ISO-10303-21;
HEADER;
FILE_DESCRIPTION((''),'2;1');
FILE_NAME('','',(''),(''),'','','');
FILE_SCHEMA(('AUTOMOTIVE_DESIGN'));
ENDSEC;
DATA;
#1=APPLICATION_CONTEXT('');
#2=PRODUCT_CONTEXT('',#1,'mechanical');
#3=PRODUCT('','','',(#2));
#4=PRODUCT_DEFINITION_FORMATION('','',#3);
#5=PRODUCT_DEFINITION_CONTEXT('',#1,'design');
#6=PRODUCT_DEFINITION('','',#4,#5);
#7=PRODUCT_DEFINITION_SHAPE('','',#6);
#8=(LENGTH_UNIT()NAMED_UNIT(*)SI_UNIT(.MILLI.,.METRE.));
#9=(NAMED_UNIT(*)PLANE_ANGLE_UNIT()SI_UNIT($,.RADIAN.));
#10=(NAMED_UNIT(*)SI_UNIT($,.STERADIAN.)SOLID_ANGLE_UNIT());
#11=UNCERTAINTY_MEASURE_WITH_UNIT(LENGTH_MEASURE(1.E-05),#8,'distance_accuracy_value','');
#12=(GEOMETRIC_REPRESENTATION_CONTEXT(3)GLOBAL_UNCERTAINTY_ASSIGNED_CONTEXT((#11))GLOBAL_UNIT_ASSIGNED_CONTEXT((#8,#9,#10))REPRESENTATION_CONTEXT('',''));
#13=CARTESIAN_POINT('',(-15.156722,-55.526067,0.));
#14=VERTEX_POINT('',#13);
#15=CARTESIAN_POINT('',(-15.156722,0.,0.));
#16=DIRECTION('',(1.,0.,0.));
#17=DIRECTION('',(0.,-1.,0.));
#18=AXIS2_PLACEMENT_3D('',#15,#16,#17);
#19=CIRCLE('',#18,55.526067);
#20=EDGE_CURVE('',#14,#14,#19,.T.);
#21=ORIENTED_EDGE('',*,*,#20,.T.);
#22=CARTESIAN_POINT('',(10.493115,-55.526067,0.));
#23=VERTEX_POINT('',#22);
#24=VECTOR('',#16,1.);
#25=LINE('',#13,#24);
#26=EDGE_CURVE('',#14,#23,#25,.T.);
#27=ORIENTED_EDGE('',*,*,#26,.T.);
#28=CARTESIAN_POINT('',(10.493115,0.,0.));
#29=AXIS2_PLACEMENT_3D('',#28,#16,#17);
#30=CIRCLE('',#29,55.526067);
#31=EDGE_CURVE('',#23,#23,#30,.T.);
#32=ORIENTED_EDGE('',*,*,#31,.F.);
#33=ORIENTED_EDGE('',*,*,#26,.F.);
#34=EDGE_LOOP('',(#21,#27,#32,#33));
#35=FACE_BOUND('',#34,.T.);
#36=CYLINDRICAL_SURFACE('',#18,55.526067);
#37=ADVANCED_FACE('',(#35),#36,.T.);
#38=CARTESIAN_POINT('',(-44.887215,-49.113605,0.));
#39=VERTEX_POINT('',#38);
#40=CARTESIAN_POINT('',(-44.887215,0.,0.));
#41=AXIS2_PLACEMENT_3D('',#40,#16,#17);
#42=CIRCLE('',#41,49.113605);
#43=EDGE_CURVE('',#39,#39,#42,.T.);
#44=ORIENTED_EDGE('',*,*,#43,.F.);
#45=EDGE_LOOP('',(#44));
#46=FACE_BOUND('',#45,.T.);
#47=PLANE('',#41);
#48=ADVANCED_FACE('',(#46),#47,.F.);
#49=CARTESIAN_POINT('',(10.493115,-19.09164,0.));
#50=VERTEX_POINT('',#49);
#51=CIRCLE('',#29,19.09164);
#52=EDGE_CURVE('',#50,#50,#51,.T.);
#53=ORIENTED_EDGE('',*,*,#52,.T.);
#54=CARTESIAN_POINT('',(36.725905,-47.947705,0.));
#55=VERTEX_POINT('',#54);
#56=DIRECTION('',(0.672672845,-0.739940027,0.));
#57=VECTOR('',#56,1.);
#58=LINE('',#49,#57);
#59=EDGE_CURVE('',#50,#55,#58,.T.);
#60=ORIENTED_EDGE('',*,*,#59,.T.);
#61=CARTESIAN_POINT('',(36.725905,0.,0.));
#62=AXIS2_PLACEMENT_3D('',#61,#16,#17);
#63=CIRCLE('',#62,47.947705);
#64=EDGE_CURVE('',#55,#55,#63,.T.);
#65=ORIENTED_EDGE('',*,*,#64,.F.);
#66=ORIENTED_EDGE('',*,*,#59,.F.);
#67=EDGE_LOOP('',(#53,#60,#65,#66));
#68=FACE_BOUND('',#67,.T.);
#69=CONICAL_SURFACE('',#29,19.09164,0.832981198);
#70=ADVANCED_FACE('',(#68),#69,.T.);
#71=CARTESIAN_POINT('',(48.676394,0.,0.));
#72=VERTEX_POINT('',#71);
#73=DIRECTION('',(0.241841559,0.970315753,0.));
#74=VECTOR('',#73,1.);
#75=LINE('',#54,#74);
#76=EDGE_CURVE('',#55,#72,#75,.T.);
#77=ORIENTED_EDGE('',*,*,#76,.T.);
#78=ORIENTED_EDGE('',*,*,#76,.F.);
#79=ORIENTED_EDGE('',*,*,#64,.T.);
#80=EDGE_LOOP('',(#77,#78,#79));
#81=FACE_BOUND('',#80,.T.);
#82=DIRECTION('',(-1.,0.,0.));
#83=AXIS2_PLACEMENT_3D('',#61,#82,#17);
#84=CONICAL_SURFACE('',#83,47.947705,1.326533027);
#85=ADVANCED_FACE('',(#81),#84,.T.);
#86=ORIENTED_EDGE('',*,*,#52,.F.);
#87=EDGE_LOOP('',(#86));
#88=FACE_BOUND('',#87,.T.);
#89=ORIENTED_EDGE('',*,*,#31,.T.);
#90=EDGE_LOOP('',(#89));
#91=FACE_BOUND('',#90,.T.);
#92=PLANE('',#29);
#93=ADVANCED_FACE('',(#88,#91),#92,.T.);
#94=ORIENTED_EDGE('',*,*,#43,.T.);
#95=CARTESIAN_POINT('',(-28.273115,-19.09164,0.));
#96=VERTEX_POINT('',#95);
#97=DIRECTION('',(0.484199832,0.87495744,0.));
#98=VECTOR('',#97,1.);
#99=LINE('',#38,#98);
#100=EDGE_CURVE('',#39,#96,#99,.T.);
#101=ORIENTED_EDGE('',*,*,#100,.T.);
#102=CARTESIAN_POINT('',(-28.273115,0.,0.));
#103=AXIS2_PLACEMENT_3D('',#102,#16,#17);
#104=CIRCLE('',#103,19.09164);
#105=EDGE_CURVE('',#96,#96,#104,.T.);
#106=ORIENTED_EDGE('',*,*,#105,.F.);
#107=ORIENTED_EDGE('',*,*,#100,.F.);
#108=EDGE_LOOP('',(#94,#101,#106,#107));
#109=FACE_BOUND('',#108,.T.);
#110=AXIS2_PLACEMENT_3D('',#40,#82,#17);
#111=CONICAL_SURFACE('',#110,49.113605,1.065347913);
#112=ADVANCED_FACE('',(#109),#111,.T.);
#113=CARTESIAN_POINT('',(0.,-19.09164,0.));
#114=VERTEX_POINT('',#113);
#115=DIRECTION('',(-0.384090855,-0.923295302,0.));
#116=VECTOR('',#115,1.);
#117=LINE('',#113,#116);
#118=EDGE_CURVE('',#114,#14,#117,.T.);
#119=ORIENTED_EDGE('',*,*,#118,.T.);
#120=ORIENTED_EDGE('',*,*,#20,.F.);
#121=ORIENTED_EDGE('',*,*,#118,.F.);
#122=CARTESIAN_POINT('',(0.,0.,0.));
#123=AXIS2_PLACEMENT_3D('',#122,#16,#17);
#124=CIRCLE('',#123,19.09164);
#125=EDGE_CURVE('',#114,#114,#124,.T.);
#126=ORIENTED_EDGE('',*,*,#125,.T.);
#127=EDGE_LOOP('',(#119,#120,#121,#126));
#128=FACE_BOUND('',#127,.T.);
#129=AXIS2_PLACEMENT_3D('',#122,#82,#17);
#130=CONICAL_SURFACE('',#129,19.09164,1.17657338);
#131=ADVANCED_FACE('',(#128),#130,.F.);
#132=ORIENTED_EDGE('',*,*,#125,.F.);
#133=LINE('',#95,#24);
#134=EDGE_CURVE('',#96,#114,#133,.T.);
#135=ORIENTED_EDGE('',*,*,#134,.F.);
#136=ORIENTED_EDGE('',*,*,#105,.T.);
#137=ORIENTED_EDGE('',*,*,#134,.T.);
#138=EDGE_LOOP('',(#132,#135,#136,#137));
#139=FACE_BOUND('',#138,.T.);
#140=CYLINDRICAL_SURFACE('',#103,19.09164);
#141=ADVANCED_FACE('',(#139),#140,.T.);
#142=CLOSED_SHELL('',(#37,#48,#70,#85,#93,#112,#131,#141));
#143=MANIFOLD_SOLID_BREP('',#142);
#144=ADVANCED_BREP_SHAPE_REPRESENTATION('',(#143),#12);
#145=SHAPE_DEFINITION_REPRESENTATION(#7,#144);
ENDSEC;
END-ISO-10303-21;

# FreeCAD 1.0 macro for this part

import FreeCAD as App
import Part
import Sketcher

V = App.Vector

doc = App.newDocument("Part")
body = doc.addObject("PartDesign::Body", "Body")

# Sketch on XY plane
sketch1 = body.newObject("Sketcher::SketchObject", "Sketch")
sketch1.AttachmentSupport = (doc.getObject("XY_Plane"), [""])
sketch1.MapMode = "FlatFace"
sketch1.addGeometry([
    Part.LineSegment(V(48.676394, 0, 0), V(-44.887215, 0, 0)),  # 0
    Part.LineSegment(V(-44.887215, 0, 0), V(-44.887215, -49.113605, 0)),  # 1
    Part.LineSegment(V(-44.887215, -49.113605, 0), V(-28.273115, -19.09164, 0)),  # 2
    Part.LineSegment(V(-28.273115, -19.09164, 0), V(0, -19.09164, 0)),  # 3
    Part.LineSegment(V(0, -19.09164, 0), V(-15.156722, -55.526067, 0)),  # 4
    Part.LineSegment(V(-15.156722, -55.526067, 0), V(10.493115, -55.526067, 0)),  # 5
    Part.LineSegment(V(10.493115, -55.526067, 0), V(10.493115, -19.09164, 0)),  # 6
    Part.LineSegment(V(10.493115, -19.09164, 0), V(36.725905, -47.947705, 0)),  # 7
    Part.LineSegment(V(36.725905, -47.947705, 0), V(48.676394, 0, 0)),  # 8
], False)
sketch1.addConstraint([
    Sketcher.Constraint("Coincident", 0, 2, 1, 1),
    Sketcher.Constraint("Coincident", 1, 2, 2, 1),
    Sketcher.Constraint("Coincident", 2, 2, 3, 1),
    Sketcher.Constraint("Coincident", 3, 2, 4, 1),
    Sketcher.Constraint("Coincident", 4, 2, 5, 1),
    Sketcher.Constraint("Coincident", 5, 2, 6, 1),
    Sketcher.Constraint("Coincident", 6, 2, 7, 1),
    Sketcher.Constraint("Coincident", 7, 2, 8, 1),
    Sketcher.Constraint("Coincident", 8, 2, 0, 1),
    Sketcher.Constraint("Horizontal", 0),
    Sketcher.Constraint("Vertical", 1),
    Sketcher.Constraint("Horizontal", 3),
    Sketcher.Constraint("Horizontal", 5),
    Sketcher.Constraint("Vertical", 6),
    Sketcher.Constraint("PointOnObject", 0, 2, -1),
    Sketcher.Constraint("PointOnObject", 3, 2, -2),
    Sketcher.Constraint("Horizontal", 3, 2, 6, 2),
    Sketcher.Constraint("DistanceX", 0, 2, 0, 1, 93.563609),
    Sketcher.Constraint("DistanceX", 0, 2, 2, 2, 16.6141),
    Sketcher.Constraint("Distance", 8, 49.414538),
    Sketcher.Constraint("DistanceX", 3, 1, 3, 2, 28.273115),
    Sketcher.Constraint("DistanceX", 5, 1, 5, 2, 25.649837),
    Sketcher.Constraint("DistanceY", 1, 2, 1, 1, 49.113605),
    Sketcher.Constraint("DistanceY", 6, 1, 6, 2, 36.434427),
    Sketcher.Constraint("DistanceY", 2, 2, -1, 1, 19.09164),
    Sketcher.Constraint("DistanceX", 2, 2, 5, 2, 38.76623),
    Sketcher.Constraint("DistanceX", 5, 2, 7, 2, 26.23279),
])
revolution = body.newObject("PartDesign::Revolution", "Revolution")
revolution.Profile = sketch1
revolution.ReferenceAxis = (sketch1, ["H_Axis"])
revolution.Angle = 360

doc.recompute()
